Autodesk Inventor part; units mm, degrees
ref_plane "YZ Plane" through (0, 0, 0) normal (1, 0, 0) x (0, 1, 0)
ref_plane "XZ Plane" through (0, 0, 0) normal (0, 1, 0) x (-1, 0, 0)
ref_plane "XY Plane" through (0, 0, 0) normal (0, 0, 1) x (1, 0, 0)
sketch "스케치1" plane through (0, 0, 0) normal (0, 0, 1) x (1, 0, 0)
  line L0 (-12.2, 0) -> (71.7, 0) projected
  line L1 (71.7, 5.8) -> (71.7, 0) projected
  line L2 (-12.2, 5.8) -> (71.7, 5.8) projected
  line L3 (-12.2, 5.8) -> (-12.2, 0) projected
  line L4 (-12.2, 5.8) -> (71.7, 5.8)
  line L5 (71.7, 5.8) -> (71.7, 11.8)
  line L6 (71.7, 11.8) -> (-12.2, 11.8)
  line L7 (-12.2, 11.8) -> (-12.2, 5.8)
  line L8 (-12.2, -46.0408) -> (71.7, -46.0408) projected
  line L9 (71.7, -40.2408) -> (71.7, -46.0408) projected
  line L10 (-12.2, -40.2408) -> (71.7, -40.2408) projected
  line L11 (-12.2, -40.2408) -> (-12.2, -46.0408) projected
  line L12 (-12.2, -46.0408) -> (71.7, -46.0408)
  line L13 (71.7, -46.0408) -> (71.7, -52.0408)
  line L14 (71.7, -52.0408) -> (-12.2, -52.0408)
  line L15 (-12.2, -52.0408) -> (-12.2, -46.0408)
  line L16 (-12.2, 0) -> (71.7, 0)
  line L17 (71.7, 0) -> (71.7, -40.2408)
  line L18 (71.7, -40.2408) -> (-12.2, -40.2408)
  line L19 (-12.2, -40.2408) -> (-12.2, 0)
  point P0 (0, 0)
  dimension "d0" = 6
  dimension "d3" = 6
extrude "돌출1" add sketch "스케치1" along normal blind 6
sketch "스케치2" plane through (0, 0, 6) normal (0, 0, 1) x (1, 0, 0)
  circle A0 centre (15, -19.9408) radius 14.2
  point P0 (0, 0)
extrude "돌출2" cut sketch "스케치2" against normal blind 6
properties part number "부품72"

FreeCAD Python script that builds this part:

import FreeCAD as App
import Part
import Sketcher
from FreeCAD import Vector

doc = App.newDocument("Part")
params = doc.addObject("Spreadsheet::Sheet", "Params")
for row, (alias, value) in enumerate([
    ("sketch1_width", "83.9 mm"),
    ("pad1_length", "6 mm"),
    ("sketch2_diameter", "28.4 mm"),
    ("pocket1_length", "6 mm"),
], start=1):
    params.set(f"A{row}", alias)
    params.set(f"B{row}", "=" + value)
    params.setAlias(f"B{row}", alias)

body = doc.addObject("PartDesign::Body", "Body")

# Sketch on XY plane
sketch1 = doc.addObject("Sketcher::SketchObject", "Sketch")
body.addObject(sketch1)
sketch1.AttachmentSupport = (doc.XY_Plane, [""])
sketch1.MapMode = "FlatFace"
sketch1.addGeometry([
    Part.LineSegment(Vector(-12, -52, 0), Vector(72, -52, 0)),
    Part.LineSegment(Vector(72, -52, 0), Vector(72, 12, 0)),
    Part.LineSegment(Vector(72, 12, 0), Vector(-12, 12, 0)),
    Part.LineSegment(Vector(-12, 12, 0), Vector(-12, -52, 0)),
], False)
sketch1.addConstraint([
    Sketcher.Constraint("Coincident", 0, 2, 1, 1),
    Sketcher.Constraint("Coincident", 1, 2, 2, 1),
    Sketcher.Constraint("Coincident", 2, 2, 3, 1),
    Sketcher.Constraint("Coincident", 3, 2, 0, 1),
    Sketcher.Constraint("Horizontal", 0),
    Sketcher.Constraint("Vertical", 1),
    Sketcher.Constraint("Horizontal", 2),
    Sketcher.Constraint("Vertical", 3),
    Sketcher.Constraint("DistanceX", 0, 1, 0, 2, 83.9),
    Sketcher.Constraint("DistanceX", -1, 1, 0, 2, 71.7),
    Sketcher.Constraint("DistanceY", -1, 1, 1, 2, 11.8),
    Sketcher.Constraint("DistanceY", 1, 1, 1, 2, 63.8408),
])
sketch1.setExpression("Constraints[8]", "Params.sketch1_width")
pad1 = doc.addObject("PartDesign::Pad", "Pad")
body.addObject(pad1)
pad1.Profile = sketch1
pad1.setExpression("Length", "Params.pad1_length")

# Sketch on XY plane
sketch2 = doc.addObject("Sketcher::SketchObject", "Sketch001")
body.addObject(sketch2)
sketch2.AttachmentSupport = (doc.XY_Plane, [""])
sketch2.MapMode = "FlatFace"
sketch2.AttachmentOffset = App.Placement(Vector(0, 0, 6), App.Rotation())
sketch2.addGeometry(Part.Circle(Vector(15, -20, 0), Vector(0, 0, 1), 14), False)
sketch2.addConstraint([
    Sketcher.Constraint("Diameter", 0, 28.4),
    Sketcher.Constraint("DistanceX", -1, 1, 0, 3, 15.0),
    Sketcher.Constraint("DistanceY", 0, 3, -1, 1, 19.9408),
])
sketch2.setExpression("Constraints[0]", "Params.sketch2_diameter")
pocket1 = doc.addObject("PartDesign::Pocket", "Pocket")
body.addObject(pocket1)
pocket1.Profile = sketch2
pocket1.setExpression("Length", "Params.pocket1_length")

doc.recompute()
